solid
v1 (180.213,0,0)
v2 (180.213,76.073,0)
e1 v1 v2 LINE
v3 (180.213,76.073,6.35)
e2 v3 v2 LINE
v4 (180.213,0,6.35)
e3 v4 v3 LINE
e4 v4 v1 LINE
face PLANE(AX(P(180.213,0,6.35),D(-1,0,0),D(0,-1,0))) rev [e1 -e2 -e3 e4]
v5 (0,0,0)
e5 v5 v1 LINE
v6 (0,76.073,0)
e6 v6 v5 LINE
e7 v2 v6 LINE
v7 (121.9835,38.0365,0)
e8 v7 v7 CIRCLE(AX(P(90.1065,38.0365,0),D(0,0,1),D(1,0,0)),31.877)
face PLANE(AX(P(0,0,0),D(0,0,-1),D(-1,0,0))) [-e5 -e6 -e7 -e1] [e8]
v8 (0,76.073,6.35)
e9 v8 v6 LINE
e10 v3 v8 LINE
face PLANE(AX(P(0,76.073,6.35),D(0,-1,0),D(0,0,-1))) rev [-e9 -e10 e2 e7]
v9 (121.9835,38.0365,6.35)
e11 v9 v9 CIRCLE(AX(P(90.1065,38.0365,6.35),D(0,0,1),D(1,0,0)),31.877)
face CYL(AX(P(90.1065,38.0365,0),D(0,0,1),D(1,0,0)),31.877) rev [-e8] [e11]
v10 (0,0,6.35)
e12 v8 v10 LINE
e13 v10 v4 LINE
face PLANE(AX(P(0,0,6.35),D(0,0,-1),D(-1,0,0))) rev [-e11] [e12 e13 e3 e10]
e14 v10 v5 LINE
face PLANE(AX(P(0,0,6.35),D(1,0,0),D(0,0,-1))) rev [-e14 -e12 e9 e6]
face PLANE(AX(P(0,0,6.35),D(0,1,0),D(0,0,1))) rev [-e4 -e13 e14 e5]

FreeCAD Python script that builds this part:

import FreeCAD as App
import Part
import Sketcher

V = App.Vector
Q = App.Units.Quantity


def add_polygon(sketch, points):
    """Adds a closed chain of lines whose ends are joined by coincident constraints."""
    first, n = sketch.GeometryCount, len(points)
    for a, b in zip(points, points[1:] + points[:1]):
        sketch.addGeometry(Part.LineSegment(App.Vector(*a, 0), App.Vector(*b, 0)), False)
    for i in range(n):
        sketch.addConstraint(Sketcher.Constraint("Coincident", first + i, 2, first + (i + 1) % n, 1))

doc = App.newDocument("Part")
body = doc.addObject("PartDesign::Body", "Body")

# Sketch on XY plane
sketch1 = doc.addObject("Sketcher::SketchObject", "Sketch")
body.addObject(sketch1)
sketch1.AttachmentSupport = (doc.XY_Plane, [""])
sketch1.MapMode = "FlatFace"
add_polygon(sketch1, [(0, 76), (0, 0), (180, 0), (180, 76)])  # lines 0-3
sketch1.addConstraint(Sketcher.Constraint("Vertical", 0))
sketch1.addConstraint(Sketcher.Constraint("Horizontal", 1))
sketch1.addConstraint(Sketcher.Constraint("Vertical", 2))
sketch1.addConstraint(Sketcher.Constraint("Horizontal", 3))
sketch1.addConstraint(Sketcher.Constraint("Coincident", 0, 2, -1, 1))
sketch1.addConstraint(Sketcher.Constraint("DistanceX", 1, 1, 1, 2, Q("7.095 in")))
sketch1.addConstraint(Sketcher.Constraint("DistanceY", 0, 2, 0, 1, Q("2.995 in")))
pad1 = doc.addObject("PartDesign::Pad", "Pad")
body.addObject(pad1)
pad1.Profile = sketch1
pad1.Length = Q("0.25 in")

# Sketch on XY plane
sketch2 = doc.addObject("Sketcher::SketchObject", "Sketch001")
body.addObject(sketch2)
sketch2.AttachmentSupport = (doc.XY_Plane, [""])
sketch2.MapMode = "FlatFace"
sketch2.AttachmentOffset = App.Placement(V(0, 0, 0.25 * 25.4), App.Rotation())
sketch2.addGeometry(Part.Circle(V(90, 38, 0), V(0, 0, 1), 32), False)
sketch2.addConstraint(Sketcher.Constraint("Diameter", 0, Q("2.51 in")))
sketch2.addConstraint(Sketcher.Constraint("DistanceX", -1, 1, 0, 3, Q("3.5475 in")))
sketch2.addConstraint(Sketcher.Constraint("DistanceY", -1, 1, 0, 3, Q("1.4975 in")))
pocket1 = doc.addObject("PartDesign::Pocket", "Pocket")
body.addObject(pocket1)
pocket1.Profile = sketch2
pocket1.Type = "ThroughAll"

doc.recompute()
